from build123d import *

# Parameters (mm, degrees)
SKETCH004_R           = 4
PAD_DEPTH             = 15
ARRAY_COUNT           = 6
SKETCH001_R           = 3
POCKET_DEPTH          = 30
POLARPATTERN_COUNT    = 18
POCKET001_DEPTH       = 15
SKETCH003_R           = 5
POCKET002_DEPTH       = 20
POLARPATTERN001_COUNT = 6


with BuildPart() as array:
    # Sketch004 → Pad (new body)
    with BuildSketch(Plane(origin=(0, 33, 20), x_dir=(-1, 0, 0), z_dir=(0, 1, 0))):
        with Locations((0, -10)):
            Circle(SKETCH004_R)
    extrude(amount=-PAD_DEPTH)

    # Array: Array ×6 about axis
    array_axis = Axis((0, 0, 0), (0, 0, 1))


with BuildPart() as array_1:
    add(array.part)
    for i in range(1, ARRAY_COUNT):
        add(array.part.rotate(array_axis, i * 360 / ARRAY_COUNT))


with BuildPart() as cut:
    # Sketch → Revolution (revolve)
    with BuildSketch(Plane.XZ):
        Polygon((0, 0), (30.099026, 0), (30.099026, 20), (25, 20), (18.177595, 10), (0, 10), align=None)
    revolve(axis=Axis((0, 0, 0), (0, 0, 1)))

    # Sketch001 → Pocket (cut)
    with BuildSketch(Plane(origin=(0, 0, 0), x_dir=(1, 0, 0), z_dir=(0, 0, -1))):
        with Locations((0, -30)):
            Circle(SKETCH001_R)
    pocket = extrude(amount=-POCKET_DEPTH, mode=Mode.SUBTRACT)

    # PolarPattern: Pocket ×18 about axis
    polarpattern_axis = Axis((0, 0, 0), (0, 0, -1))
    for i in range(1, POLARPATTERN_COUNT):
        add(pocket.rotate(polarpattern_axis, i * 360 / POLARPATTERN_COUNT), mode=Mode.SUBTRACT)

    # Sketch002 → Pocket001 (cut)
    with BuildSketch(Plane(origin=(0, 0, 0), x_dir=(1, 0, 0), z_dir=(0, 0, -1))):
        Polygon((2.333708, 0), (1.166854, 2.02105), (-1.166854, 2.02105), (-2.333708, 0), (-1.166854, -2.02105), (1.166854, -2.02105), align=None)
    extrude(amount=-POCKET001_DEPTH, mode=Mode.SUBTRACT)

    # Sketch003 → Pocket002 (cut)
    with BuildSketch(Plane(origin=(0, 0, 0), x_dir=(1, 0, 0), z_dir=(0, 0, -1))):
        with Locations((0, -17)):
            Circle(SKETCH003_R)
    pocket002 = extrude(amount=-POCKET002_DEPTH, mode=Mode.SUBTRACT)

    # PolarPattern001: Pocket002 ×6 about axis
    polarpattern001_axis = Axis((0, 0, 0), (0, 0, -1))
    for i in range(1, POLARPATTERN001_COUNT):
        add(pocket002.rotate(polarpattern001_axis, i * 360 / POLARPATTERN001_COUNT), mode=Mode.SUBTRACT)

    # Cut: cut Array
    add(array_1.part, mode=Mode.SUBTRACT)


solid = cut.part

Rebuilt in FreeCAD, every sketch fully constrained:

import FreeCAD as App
import Part
import Sketcher

V = App.Vector
Q = App.Units.Quantity


def add_polygon(sketch, points):
    """Adds a closed chain of lines whose ends are joined by coincident constraints."""
    first, n = sketch.GeometryCount, len(points)
    for a, b in zip(points, points[1:] + points[:1]):
        sketch.addGeometry(Part.LineSegment(App.Vector(*a, 0), App.Vector(*b, 0)), False)
    for i in range(n):
        sketch.addConstraint(Sketcher.Constraint("Coincident", first + i, 2, first + (i + 1) % n, 1))

doc = App.newDocument("Part")
body = doc.addObject("PartDesign::Body", "Body")

# Sketch on XZ plane
sketch1 = doc.addObject("Sketcher::SketchObject", "Sketch")
body.addObject(sketch1)
sketch1.AttachmentSupport = (doc.XZ_Plane, [""])
sketch1.MapMode = "FlatFace"
sketch1.AttachmentOffset = App.Placement(V(0, 0, -33), App.Rotation())
sketch1.addGeometry(Part.Circle(V(0, 10, 0), V(0, 0, 1), 4), False)
sketch1.addConstraint(Sketcher.Constraint("PointOnObject", 0, 3, -2))
sketch1.addConstraint(Sketcher.Constraint("Diameter", 0, 8.0))
sketch1.addConstraint(Sketcher.Constraint("DistanceY", -1, 1, 0, 3, 10.0))
pad1 = doc.addObject("PartDesign::Pad", "Pad")
body.addObject(pad1)
pad1.Profile = sketch1
pad1.Length = 15
body2 = doc.addObject("PartDesign::Body", "Body001")
body2.AllowCompound = True
doc.recompute()

body2.BaseFeature = body
doc.recompute()

body3 = doc.addObject("PartDesign::Body", "Body002")
body3.BaseFeature = body
body3.Placement = App.Placement(V(0, 0, 0), App.Rotation(V(0, 0, 1), 60))
boolean = doc.addObject("PartDesign::Boolean", "Boolean")
body2.addObject(boolean)
boolean.Type = "Fuse"
boolean.addObjects([body3])
doc.recompute()

body4 = doc.addObject("PartDesign::Body", "Body003")
body4.BaseFeature = body
body4.Placement = App.Placement(V(0, 0, 0), App.Rotation(V(0, 0, 1), 120))
boolean2 = doc.addObject("PartDesign::Boolean", "Boolean001")
body2.addObject(boolean2)
boolean2.Type = "Fuse"
boolean2.addObjects([body4])
doc.recompute()

body5 = doc.addObject("PartDesign::Body", "Body004")
body5.BaseFeature = body
body5.Placement = App.Placement(V(0, 0, 0), App.Rotation(V(0, 0, 1), 180))
boolean3 = doc.addObject("PartDesign::Boolean", "Boolean002")
body2.addObject(boolean3)
boolean3.Type = "Fuse"
boolean3.addObjects([body5])
doc.recompute()

body6 = doc.addObject("PartDesign::Body", "Body005")
body6.BaseFeature = body
body6.Placement = App.Placement(V(0, 0, 0), App.Rotation(V(0, 0, 1), 240))
boolean4 = doc.addObject("PartDesign::Boolean", "Boolean003")
body2.addObject(boolean4)
boolean4.Type = "Fuse"
boolean4.addObjects([body6])
doc.recompute()

body.Placement = App.Placement(V(0, 0, 0), App.Rotation(V(0, 0, 1), 300))
boolean5 = doc.addObject("PartDesign::Boolean", "Boolean004")
body2.addObject(boolean5)
boolean5.Type = "Fuse"
boolean5.addObjects([body])
body7 = doc.addObject("PartDesign::Body", "Body006")

# Sketch on XZ plane
sketch2 = doc.addObject("Sketcher::SketchObject", "Sketch001")
body7.addObject(sketch2)
sketch2.AttachmentSupport = (doc.getObject("XZ_Plane006"), [""])
sketch2.MapMode = "FlatFace"
add_polygon(sketch2, [(0, 0), (30, 0), (30, 20), (25, 20), (18, 10), (0, 10)])  # lines 0-5
sketch2.addConstraint(Sketcher.Constraint("Horizontal", 0))
sketch2.addConstraint(Sketcher.Constraint("Vertical", 1))
sketch2.addConstraint(Sketcher.Constraint("Horizontal", 2))
sketch2.addConstraint(Sketcher.Constraint("Horizontal", 4))
sketch2.addConstraint(Sketcher.Constraint("Vertical", 5))
sketch2.addConstraint(Sketcher.Constraint("Coincident", 5, 2, -1, 1))
sketch2.addConstraint(Sketcher.Constraint("DistanceY", 1, 1, 1, 2, 20.0))
sketch2.addConstraint(Sketcher.Constraint("DistanceY", 5, 2, 5, 1, 10.0))
sketch2.addConstraint(Sketcher.Constraint("DistanceX", -1, 1, 2, 2, 25.0))
sketch2.addConstraint(Sketcher.Constraint("DistanceX", 0, 1, 0, 2, 30.099026))
sketch2.addConstraint(Sketcher.Constraint("DistanceX", 4, 2, 4, 1, 18.177595))
revolution = doc.addObject("PartDesign::Revolution", "Revolution")
body7.addObject(revolution)
revolution.Profile = sketch2
revolution.ReferenceAxis = (sketch2, ["V_Axis"])
revolution.Angle = 360

# Sketch on XY plane
sketch3 = doc.addObject("Sketcher::SketchObject", "Sketch002")
body7.addObject(sketch3)
sketch3.AttachmentSupport = (doc.getObject("XY_Plane006"), [""])
sketch3.MapMode = "FlatFace"
sketch3.addGeometry(Part.Circle(V(0, 30, 0), V(0, 0, 1), 3), False)
sketch3.addConstraint(Sketcher.Constraint("PointOnObject", 0, 3, -2))
sketch3.addConstraint(Sketcher.Constraint("Diameter", 0, 6.0))
sketch3.addConstraint(Sketcher.Constraint("DistanceY", -1, 1, 0, 3, 30.0))
pocket1 = doc.addObject("PartDesign::Pocket", "Pocket")
body7.addObject(pocket1)
pocket1.Profile = sketch3
pocket1.Length = 30
pocket1.Reversed = True
doc.recompute()

polarpattern = doc.addObject("PartDesign::PolarPattern", "PolarPattern")
body7.addObject(polarpattern)
polarpattern.Originals = [pocket1]
polarpattern.Axis = (doc.getObject("Z_Axis006"), [""])
polarpattern.Angle = 360
polarpattern.Occurrences = 18
body7.Tip = polarpattern

# Sketch on XY plane
sketch4 = doc.addObject("Sketcher::SketchObject", "Sketch003")
body7.addObject(sketch4)
sketch4.AttachmentSupport = (doc.getObject("XY_Plane006"), [""])
sketch4.MapMode = "FlatFace"
add_polygon(sketch4, [(2.3, 0), (1.2, -2), (-1.2, -2), (-2.3, 0), (-1.2, 2), (1.2, 2)])  # lines 0-5
sketch4.addConstraint(Sketcher.Constraint("Horizontal", 1))
sketch4.addConstraint(Sketcher.Constraint("Horizontal", 4))
sketch4.addConstraint(Sketcher.Constraint("Symmetric", 0, 2, 3, 2, -1, 1))
sketch4.addConstraint(Sketcher.Constraint("Symmetric", 2, 2, 5, 2, -1, 1))
sketch4.addConstraint(Sketcher.Constraint("PointOnObject", 2, 2, -1))
sketch4.addConstraint(Sketcher.Constraint("Parallel", 2, 5))
sketch4.addConstraint(Sketcher.Constraint("Vertical", 1, 2, 3, 2))
sketch4.addConstraint(Sketcher.Constraint("Angle", 0, Q("-120.000005 deg")))
sketch4.addConstraint(Sketcher.Constraint("DistanceX", 1, 2, 1, 1, 2.333708))
sketch4.addConstraint(Sketcher.Constraint("DistanceY", 1, 2, 3, 2, 4.0421))
pocket2 = doc.addObject("PartDesign::Pocket", "Pocket001")
body7.addObject(pocket2)
pocket2.Profile = sketch4
pocket2.Length = 15
pocket2.Reversed = True

# Sketch on XY plane
sketch5 = doc.addObject("Sketcher::SketchObject", "Sketch004")
body7.addObject(sketch5)
sketch5.AttachmentSupport = (doc.getObject("XY_Plane006"), [""])
sketch5.MapMode = "FlatFace"
sketch5.addGeometry(Part.Circle(V(0, 17, 0), V(0, 0, 1), 5), False)
sketch5.addConstraint(Sketcher.Constraint("PointOnObject", 0, 3, -2))
sketch5.addConstraint(Sketcher.Constraint("Diameter", 0, 10.0))
sketch5.addConstraint(Sketcher.Constraint("DistanceY", -1, 1, 0, 3, 17.0))
pocket3 = doc.addObject("PartDesign::Pocket", "Pocket002")
body7.addObject(pocket3)
pocket3.Profile = sketch5
pocket3.Length = 20
pocket3.Reversed = True
doc.recompute()

polarpattern2 = doc.addObject("PartDesign::PolarPattern", "PolarPattern001")
body7.addObject(polarpattern2)
polarpattern2.Originals = [pocket3]
polarpattern2.Axis = (doc.getObject("Z_Axis006"), [""])
polarpattern2.Angle = 360
polarpattern2.Occurrences = 6
body7.Tip = polarpattern2
doc.recompute()

boolean6 = doc.addObject("PartDesign::Boolean", "Boolean005")
body7.addObject(boolean6)
boolean6.Type = "Cut"
boolean6.addObjects([body2])

doc.recompute()
